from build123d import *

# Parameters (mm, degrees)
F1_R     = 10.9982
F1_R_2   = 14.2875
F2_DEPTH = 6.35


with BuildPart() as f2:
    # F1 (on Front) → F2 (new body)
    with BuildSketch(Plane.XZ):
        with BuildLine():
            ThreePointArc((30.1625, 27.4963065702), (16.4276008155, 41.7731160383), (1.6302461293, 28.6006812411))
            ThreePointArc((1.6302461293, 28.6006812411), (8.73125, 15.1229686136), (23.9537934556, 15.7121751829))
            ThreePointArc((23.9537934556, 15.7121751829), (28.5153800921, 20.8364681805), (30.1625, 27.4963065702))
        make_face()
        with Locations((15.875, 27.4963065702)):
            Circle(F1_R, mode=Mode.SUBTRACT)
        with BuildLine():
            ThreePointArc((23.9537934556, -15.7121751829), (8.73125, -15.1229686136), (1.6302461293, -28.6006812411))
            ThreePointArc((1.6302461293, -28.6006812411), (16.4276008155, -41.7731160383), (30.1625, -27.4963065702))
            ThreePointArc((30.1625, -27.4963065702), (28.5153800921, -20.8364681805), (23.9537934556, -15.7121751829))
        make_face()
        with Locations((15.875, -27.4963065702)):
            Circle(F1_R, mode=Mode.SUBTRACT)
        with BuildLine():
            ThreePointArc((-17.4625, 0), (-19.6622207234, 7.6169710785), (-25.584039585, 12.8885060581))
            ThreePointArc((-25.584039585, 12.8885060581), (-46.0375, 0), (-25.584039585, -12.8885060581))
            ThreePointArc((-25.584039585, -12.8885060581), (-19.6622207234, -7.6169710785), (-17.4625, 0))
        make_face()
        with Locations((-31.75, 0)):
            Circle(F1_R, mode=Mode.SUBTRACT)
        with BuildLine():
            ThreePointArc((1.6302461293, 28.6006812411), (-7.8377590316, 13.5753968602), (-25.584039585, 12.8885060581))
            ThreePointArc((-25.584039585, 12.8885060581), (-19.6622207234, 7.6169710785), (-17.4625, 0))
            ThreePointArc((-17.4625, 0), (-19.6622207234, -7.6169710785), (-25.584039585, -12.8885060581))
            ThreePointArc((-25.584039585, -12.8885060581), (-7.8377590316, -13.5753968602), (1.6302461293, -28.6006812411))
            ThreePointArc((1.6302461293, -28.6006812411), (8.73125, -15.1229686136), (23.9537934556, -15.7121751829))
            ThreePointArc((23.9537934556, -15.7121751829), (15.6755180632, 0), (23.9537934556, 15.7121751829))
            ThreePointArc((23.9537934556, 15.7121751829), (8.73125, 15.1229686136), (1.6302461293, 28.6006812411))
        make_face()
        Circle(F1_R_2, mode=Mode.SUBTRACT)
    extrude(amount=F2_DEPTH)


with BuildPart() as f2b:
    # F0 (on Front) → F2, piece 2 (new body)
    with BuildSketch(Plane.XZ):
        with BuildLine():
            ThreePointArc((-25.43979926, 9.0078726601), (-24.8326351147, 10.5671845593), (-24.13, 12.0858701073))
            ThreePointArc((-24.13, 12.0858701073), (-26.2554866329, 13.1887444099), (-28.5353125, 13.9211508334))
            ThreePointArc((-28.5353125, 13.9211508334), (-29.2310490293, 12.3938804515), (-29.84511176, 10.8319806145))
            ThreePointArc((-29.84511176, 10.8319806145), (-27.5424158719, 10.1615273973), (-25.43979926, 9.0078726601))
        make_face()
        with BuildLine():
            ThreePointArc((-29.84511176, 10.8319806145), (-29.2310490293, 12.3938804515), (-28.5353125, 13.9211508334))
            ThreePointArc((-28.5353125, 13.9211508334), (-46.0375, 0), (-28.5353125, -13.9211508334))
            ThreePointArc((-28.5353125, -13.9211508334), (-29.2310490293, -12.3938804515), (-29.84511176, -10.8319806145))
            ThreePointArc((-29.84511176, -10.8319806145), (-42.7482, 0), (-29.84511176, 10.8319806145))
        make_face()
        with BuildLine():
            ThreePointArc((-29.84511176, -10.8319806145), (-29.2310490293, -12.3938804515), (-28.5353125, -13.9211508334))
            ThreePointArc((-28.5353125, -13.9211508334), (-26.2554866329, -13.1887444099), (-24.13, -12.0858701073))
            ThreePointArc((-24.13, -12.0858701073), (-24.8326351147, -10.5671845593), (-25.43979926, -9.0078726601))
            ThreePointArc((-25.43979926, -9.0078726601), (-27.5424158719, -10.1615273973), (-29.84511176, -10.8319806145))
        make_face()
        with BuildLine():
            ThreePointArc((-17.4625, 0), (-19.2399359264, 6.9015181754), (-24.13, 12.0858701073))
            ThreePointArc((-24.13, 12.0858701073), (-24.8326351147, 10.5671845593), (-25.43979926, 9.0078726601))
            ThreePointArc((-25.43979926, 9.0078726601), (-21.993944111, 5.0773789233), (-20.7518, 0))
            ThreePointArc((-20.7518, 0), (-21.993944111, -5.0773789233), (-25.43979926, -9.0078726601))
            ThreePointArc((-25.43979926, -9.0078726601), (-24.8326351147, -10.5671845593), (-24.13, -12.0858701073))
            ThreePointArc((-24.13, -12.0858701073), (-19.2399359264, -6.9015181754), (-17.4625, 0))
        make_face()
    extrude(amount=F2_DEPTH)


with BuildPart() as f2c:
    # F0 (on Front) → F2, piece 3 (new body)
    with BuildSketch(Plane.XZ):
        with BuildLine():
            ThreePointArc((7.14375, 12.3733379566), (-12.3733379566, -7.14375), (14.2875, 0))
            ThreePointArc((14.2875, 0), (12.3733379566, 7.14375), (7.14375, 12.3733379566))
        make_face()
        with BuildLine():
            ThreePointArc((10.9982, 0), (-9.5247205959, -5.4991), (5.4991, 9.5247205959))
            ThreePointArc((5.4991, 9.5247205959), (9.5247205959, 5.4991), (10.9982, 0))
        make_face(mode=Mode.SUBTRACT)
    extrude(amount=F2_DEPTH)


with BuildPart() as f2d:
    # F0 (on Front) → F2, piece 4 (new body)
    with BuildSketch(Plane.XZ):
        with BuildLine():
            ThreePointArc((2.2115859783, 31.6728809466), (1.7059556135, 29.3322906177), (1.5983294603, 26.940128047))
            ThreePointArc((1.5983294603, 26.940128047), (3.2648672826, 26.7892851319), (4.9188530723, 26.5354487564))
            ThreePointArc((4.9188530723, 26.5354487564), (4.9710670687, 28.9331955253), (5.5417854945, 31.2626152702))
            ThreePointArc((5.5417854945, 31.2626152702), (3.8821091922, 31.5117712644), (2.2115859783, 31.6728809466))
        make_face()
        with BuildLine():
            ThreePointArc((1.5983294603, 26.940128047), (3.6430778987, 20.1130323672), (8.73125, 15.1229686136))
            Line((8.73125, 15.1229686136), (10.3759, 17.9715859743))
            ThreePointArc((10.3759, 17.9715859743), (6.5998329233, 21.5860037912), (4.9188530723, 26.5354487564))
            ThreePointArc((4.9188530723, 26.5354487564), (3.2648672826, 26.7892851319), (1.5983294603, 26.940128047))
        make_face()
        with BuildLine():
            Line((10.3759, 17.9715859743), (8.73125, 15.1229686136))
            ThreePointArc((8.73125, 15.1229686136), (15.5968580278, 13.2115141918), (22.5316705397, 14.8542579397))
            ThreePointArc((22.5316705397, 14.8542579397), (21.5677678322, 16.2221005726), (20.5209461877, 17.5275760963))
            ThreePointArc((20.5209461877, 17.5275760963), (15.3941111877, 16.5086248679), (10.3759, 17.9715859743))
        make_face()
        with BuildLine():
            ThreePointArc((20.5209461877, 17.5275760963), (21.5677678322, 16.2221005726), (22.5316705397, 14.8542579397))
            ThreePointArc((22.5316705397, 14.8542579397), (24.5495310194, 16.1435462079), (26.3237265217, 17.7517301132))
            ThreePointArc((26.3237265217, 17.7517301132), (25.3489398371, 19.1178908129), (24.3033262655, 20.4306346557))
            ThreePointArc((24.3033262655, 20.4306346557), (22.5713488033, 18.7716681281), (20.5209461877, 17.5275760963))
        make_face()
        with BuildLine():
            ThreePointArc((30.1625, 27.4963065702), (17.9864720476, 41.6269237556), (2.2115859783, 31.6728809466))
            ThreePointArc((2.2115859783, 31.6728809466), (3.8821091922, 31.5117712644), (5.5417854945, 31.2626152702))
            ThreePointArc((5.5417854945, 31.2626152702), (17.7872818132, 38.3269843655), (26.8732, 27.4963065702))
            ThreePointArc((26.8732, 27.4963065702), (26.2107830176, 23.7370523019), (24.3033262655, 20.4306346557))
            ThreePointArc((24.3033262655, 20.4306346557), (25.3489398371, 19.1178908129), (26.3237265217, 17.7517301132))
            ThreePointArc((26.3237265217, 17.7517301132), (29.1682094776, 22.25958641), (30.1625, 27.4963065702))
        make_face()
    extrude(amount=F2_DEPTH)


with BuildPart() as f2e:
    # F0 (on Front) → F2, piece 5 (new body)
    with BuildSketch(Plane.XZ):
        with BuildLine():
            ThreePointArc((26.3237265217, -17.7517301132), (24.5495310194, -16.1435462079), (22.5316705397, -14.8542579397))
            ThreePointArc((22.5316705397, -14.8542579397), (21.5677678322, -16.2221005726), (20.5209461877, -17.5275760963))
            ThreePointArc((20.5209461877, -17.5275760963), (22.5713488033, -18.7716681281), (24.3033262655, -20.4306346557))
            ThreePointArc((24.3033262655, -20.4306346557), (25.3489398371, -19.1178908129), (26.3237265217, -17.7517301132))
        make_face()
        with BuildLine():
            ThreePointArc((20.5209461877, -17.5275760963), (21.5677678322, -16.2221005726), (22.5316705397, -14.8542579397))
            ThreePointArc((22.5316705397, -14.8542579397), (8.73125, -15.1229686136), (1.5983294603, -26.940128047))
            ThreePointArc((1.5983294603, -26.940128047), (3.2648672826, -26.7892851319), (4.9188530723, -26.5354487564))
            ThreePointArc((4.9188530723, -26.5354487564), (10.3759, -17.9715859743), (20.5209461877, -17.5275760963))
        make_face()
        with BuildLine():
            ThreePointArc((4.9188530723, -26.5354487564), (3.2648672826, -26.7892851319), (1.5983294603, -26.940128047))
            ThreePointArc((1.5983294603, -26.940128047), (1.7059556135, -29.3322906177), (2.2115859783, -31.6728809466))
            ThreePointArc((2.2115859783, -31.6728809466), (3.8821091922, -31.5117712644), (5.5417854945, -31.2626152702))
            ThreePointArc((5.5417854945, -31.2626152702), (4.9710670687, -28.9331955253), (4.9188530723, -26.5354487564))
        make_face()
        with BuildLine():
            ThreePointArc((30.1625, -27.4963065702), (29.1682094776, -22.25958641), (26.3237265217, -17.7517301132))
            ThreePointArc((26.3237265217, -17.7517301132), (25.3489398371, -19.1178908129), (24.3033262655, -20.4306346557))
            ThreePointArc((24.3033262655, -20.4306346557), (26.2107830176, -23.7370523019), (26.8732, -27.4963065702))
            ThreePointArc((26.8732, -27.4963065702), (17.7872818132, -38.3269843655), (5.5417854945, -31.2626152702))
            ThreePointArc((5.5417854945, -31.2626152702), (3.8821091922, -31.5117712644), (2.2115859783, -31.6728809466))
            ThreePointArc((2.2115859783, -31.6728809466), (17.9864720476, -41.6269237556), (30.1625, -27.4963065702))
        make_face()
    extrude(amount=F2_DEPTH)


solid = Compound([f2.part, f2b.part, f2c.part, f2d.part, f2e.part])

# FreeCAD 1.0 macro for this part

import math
import FreeCAD as App
import Part
import Sketcher
Q = App.Units.Quantity

doc = App.newDocument("Part")
params = doc.addObject("Spreadsheet::Sheet", "Params")
for row, (alias, value) in enumerate([
    ("sketch1_radius", "0.75 in"),
    ("sketch1_diameter", "0.866 in"),
    ("sketch1_diameter2", "1.125 in"),
    ("pad1_length", "0.25 in"),
    ("sketch2_radius", "0.5625 in"),
    ("sketch2_radius2", "0.433 in"),
    ("sketch2_width", "0.3 in"),
    ("pad2_length", "0.25 in"),
    ("sketch3_diameter", "0.866 in"),
    ("sketch3_radius", "0.5625 in"),
    ("pad3_length", "0.25 in"),
    ("sketch4_radius", "0.5625 in"),
    ("sketch4_radius2", "0.433 in"),
    ("pad4_length", "0.25 in"),
    ("sketch5_radius", "0.5625 in"),
    ("sketch5_radius2", "0.433 in"),
    ("pad5_length", "0.25 in"),
], start=1):
    params.set(f"A{row}", alias)
    params.set(f"B{row}", "=" + value)
    params.setAlias(f"B{row}", alias)

body = doc.addObject("PartDesign::Body", "Body")

# Sketch on XZ plane
sketch1 = doc.addObject("Sketcher::SketchObject", "Sketch")
body.addObject(sketch1)
sketch1.AttachmentSupport = (doc.XZ_Plane, [""])
sketch1.MapMode = "FlatFace"
sketch1.addGeometry([
    Part.ArcOfCircle(Part.Circle(App.Vector(15.875, 27.496307, 0), App.Vector(0, 0, 1), 14.2875), math.radians(0), math.radians(175.566811)),  # 0
    Part.ArcOfCircle(Part.Circle(App.Vector(-17.362759, 30.073181, 0), App.Vector(0, 0, 1), 19.05), math.radians(-115.566811), math.radians(-4.433189)),  # 1
    Part.ArcOfCircle(Part.Circle(App.Vector(-31.75, 0, 0), App.Vector(0, 0, 1), 14.2875), math.radians(64.433189), math.radians(295.566811)),  # 2
    Part.ArcOfCircle(Part.Circle(App.Vector(-17.362759, -30.073181, 0), App.Vector(0, 0, 1), 19.05), math.radians(4.433189), math.radians(115.566811)),  # 3
    Part.ArcOfCircle(Part.Circle(App.Vector(15.875, -27.496307, 0), App.Vector(0, 0, 1), 14.2875), math.radians(-175.566811), math.radians(0)),  # 4
    Part.ArcOfCircle(Part.Circle(App.Vector(15.875, -27.496307, 0), App.Vector(0, 0, 1), 14.2875), math.radians(0), math.radians(55.566811)),  # 5
    Part.ArcOfCircle(Part.Circle(App.Vector(34.725518, 0, 0), App.Vector(0, 0, 1), 19.05), math.radians(124.433189), math.radians(235.566811)),  # 6
    Part.ArcOfCircle(Part.Circle(App.Vector(15.875, 27.496307, 0), App.Vector(0, 0, 1), 14.2875), math.radians(-55.566811), math.radians(0)),  # 7
    Part.Circle(App.Vector(15.875, -27.496307, 0), App.Vector(0, 0, 1), 10.9982),  # 8
    Part.Circle(App.Vector(-31.75, 0, 0), App.Vector(0, 0, 1), 10.9982),  # 9
    Part.Circle(App.Vector(0, 0, 0), App.Vector(0, 0, 1), 14.2875),  # 10
    Part.Circle(App.Vector(15.875, 27.496307, 0), App.Vector(0, 0, 1), 10.9982),  # 11
], False)
sketch1.addConstraint([
    Sketcher.Constraint("Tangent", 0, 2, 1, 2),
    Sketcher.Constraint("Tangent", 1, 1, 2, 1),
    Sketcher.Constraint("Tangent", 2, 2, 3, 2),
    Sketcher.Constraint("Tangent", 3, 1, 4, 1),
    Sketcher.Constraint("Tangent", 4, 2, 5, 1),
    Sketcher.Constraint("Tangent", 5, 2, 6, 2),
    Sketcher.Constraint("Tangent", 6, 1, 7, 1),
    Sketcher.Constraint("Tangent", 7, 2, 0, 1),
    Sketcher.Constraint("Coincident", 10, 3, -1, 1),
    Sketcher.Constraint("Coincident", 8, 3, 4, 3),
    Sketcher.Constraint("Coincident", 9, 3, 2, 3),
    Sketcher.Constraint("Coincident", 11, 3, 0, 3),
    Sketcher.Constraint("Equal", 0, 2),
    Sketcher.Constraint("Equal", 1, 3),
    Sketcher.Constraint("Equal", 2, 4),
    Sketcher.Constraint("Equal", 4, 5),
    Sketcher.Constraint("Equal", 3, 6),
    Sketcher.Constraint("Equal", 5, 7),
    Sketcher.Constraint("Equal", 8, 9),
    Sketcher.Constraint("Equal", 7, 10),
    Sketcher.Constraint("Equal", 9, 11),
    Sketcher.Constraint("Symmetric", 1, 3, 3, 3, -1),
    Sketcher.Constraint("Symmetric", 4, 2, 7, 2, -1),
    Sketcher.Constraint("Horizontal", 8, 3, 4, 2),
    Sketcher.Constraint("Radius", 1, Q("0.75 in")),
    Sketcher.Constraint("Diameter", 8, Q("0.866 in")),
    Sketcher.Constraint("Diameter", 10, Q("1.125 in")),
    Sketcher.Constraint("DistanceX", 2, 3, -1, 1, Q("1.25 in")),
    Sketcher.Constraint("DistanceX", -1, 1, 0, 3, Q("0.625 in")),
    Sketcher.Constraint("DistanceY", 0, 2, 1, 3, Q("1.4725 mm")),
])
sketch1.setExpression("Constraints[24]", "Params.sketch1_radius")
sketch1.setExpression("Constraints[25]", "Params.sketch1_diameter")
sketch1.setExpression("Constraints[26]", "Params.sketch1_diameter2")
pad1 = doc.addObject("PartDesign::Pad", "Pad")
body.addObject(pad1)
pad1.Profile = sketch1
pad1.setExpression("Length", "Params.pad1_length")
body2 = doc.addObject("PartDesign::Body", "Body001")

# Sketch on XZ plane
sketch2 = doc.addObject("Sketcher::SketchObject", "Sketch001")
body2.addObject(sketch2)
sketch2.AttachmentSupport = (doc.getObject("XZ_Plane001"), [""])
sketch2.MapMode = "FlatFace"
sketch2.addGeometry([
    Part.ArcOfCircle(Part.Circle(App.Vector(-31.75, 0, 0), App.Vector(0, 0, 1), 14.2875), math.radians(57.769047), math.radians(76.997122)),  # 0
    Part.ArcOfCircle(Part.Circle(App.Vector(-31.75, 0, 0), App.Vector(0, 0, 1), 14.2875), math.radians(76.997122), math.radians(283.002878)),  # 1
    Part.ArcOfCircle(Part.Circle(App.Vector(-31.75, 0, 0), App.Vector(0, 0, 1), 14.2875), math.radians(-76.997122), math.radians(-57.769047)),  # 2
    Part.ArcOfCircle(Part.Circle(App.Vector(-31.75, 0, 0), App.Vector(0, 0, 1), 14.2875), math.radians(-57.769047), math.radians(0)),  # 3
    Part.ArcOfCircle(Part.Circle(App.Vector(-31.75, 0, 0), App.Vector(0, 0, 1), 14.2875), math.radians(0), math.radians(57.769047)),  # 4
    Part.ArcOfCircle(Part.Circle(App.Vector(-31.75, 0, 0), App.Vector(0, 0, 1), 10.9982), math.radians(-80.026074), math.radians(-54.987964)),  # 5
    Part.ArcOfCircle(Part.Circle(App.Vector(-31.75, 0, 0), App.Vector(0, 0, 1), 10.9982), math.radians(80.026074), math.radians(279.973926)),  # 6
    Part.ArcOfCircle(Part.Circle(App.Vector(-31.75, 0, 0), App.Vector(0, 0, 1), 10.9982), math.radians(54.987964), math.radians(80.026074)),  # 7
    Part.ArcOfCircle(Part.Circle(App.Vector(-31.75, 0, 0), App.Vector(0, 0, 1), 10.9982), math.radians(0), math.radians(54.987964)),  # 8
    Part.ArcOfCircle(Part.Circle(App.Vector(-31.75, 0, 0), App.Vector(0, 0, 1), 10.9982), math.radians(-54.987964), math.radians(0)),  # 9
], False)
sketch2.addConstraint([
    Sketcher.Constraint("Tangent", 0, 2, 1, 1),
    Sketcher.Constraint("Tangent", 1, 2, 2, 1),
    Sketcher.Constraint("Tangent", 2, 2, 3, 1),
    Sketcher.Constraint("Tangent", 3, 2, 4, 1),
    Sketcher.Constraint("Tangent", 4, 2, 0, 1),
    Sketcher.Constraint("Tangent", 5, 1, 6, 2),
    Sketcher.Constraint("Tangent", 6, 1, 7, 2),
    Sketcher.Constraint("Tangent", 7, 1, 8, 2),
    Sketcher.Constraint("Tangent", 8, 1, 9, 2),
    Sketcher.Constraint("Tangent", 9, 1, 5, 2),
    Sketcher.Constraint("Coincident", 2, 3, 0, 3),
    Sketcher.Constraint("Coincident", 5, 3, 0, 3),
    Sketcher.Constraint("Coincident", 7, 3, 0, 3),
    Sketcher.Constraint("Symmetric", 0, 2, 1, 2, -1),
    Sketcher.Constraint("PointOnObject", 3, 2, -1),
    Sketcher.Constraint("PointOnObject", 8, 1, -1),
    Sketcher.Constraint("Vertical", 2, 2, 4, 2),
    Sketcher.Constraint("Vertical", 5, 1, 6, 1),
    Sketcher.Constraint("Vertical", 7, 1, 9, 1),
    Sketcher.Constraint("Radius", 0, Q("0.5625 in")),
    Sketcher.Constraint("Radius", 5, Q("0.433 in")),
    Sketcher.Constraint("DistanceX", 2, 3, 2, 2, Q("0.3 in")),
    Sketcher.Constraint("DistanceX", 0, 3, -1, 1, Q("1.25 in")),
    Sketcher.Constraint("DistanceX", 7, 1, -1, 1, Q("25.439799 mm")),
    Sketcher.Constraint("DistanceX", 5, 1, 1, 2, Q("1.309799 mm")),
    Sketcher.Constraint("DistanceY", -1, 1, 0, 2, Q("13.921151 mm")),
])
sketch2.setExpression("Constraints[19]", "Params.sketch2_radius")
sketch2.setExpression("Constraints[20]", "Params.sketch2_radius2")
sketch2.setExpression("Constraints[21]", "Params.sketch2_width")
pad2 = doc.addObject("PartDesign::Pad", "Pad001")
body2.addObject(pad2)
pad2.Profile = sketch2
pad2.setExpression("Length", "Params.pad2_length")
body3 = doc.addObject("PartDesign::Body", "Body002")

# Sketch on XZ plane
sketch3 = doc.addObject("Sketcher::SketchObject", "Sketch002")
body3.addObject(sketch3)
sketch3.AttachmentSupport = (doc.getObject("XZ_Plane002"), [""])
sketch3.MapMode = "FlatFace"
sketch3.addGeometry([
    Part.ArcOfCircle(Part.Circle(App.Vector(0, 0, 0), App.Vector(0, 0, 1), 14.2875), math.radians(60), math.radians(360)),
    Part.ArcOfCircle(Part.Circle(App.Vector(0, 0, 0), App.Vector(0, 0, 1), 14.2875), math.radians(0), math.radians(60)),
    Part.Circle(App.Vector(0, 0, 0), App.Vector(0, 0, 1), 10.9982),
], False)
sketch3.addConstraint([
    Sketcher.Constraint("Tangent", 0, 1, 1, 2),
    Sketcher.Constraint("Coincident", 1, 1, 0, 2),
    Sketcher.Constraint("Coincident", 0, 3, -1, 1),
    Sketcher.Constraint("Coincident", 2, 3, -1, 1),
    Sketcher.Constraint("PointOnObject", 1, 1, -1),
    Sketcher.Constraint("Diameter", 2, Q("0.866 in")),
    Sketcher.Constraint("Radius", 0, Q("0.5625 in")),
    Sketcher.Constraint("DistanceX", -1, 1, 0, 1, Q("0.28125 in")),
])
sketch3.setExpression("Constraints[5]", "Params.sketch3_diameter")
sketch3.setExpression("Constraints[6]", "Params.sketch3_radius")
pad3 = doc.addObject("PartDesign::Pad", "Pad002")
body3.addObject(pad3)
pad3.Profile = sketch3
pad3.setExpression("Length", "Params.pad3_length")
body4 = doc.addObject("PartDesign::Body", "Body003")

# Sketch on XZ plane
sketch4 = doc.addObject("Sketcher::SketchObject", "Sketch003")
body4.addObject(sketch4)
sketch4.AttachmentSupport = (doc.getObject("XZ_Plane003"), [""])
sketch4.MapMode = "FlatFace"
sketch4.addGeometry([
    Part.ArcOfCircle(Part.Circle(App.Vector(15.875, 27.496307, 0), App.Vector(0, 0, 1), 14.2875), math.radians(163.002878), math.radians(182.230953)),  # 0
    Part.ArcOfCircle(Part.Circle(App.Vector(15.875, 27.496307, 0), App.Vector(0, 0, 1), 14.2875), math.radians(-177.769047), math.radians(-120)),  # 1
    Part.ArcOfCircle(Part.Circle(App.Vector(15.875, 27.496307, 0), App.Vector(0, 0, 1), 14.2875), math.radians(-120), math.radians(-62.230953)),  # 2
    Part.ArcOfCircle(Part.Circle(App.Vector(15.875, 27.496307, 0), App.Vector(0, 0, 1), 14.2875), math.radians(-62.230953), math.radians(-43.002878)),  # 3
    Part.ArcOfCircle(Part.Circle(App.Vector(15.875, 27.496307, 0), App.Vector(0, 0, 1), 14.2875), math.radians(-43.002878), math.radians(0)),  # 4
    Part.ArcOfCircle(Part.Circle(App.Vector(15.875, 27.496307, 0), App.Vector(0, 0, 1), 14.2875), math.radians(0), math.radians(163.002878)),  # 5
    Part.ArcOfCircle(Part.Circle(App.Vector(15.875, 27.496307, 0), App.Vector(0, 0, 1), 10.9982), math.radians(-65.012036), math.radians(-39.973926)),  # 6
    Part.ArcOfCircle(Part.Circle(App.Vector(15.875, 27.496307, 0), App.Vector(0, 0, 1), 10.9982), math.radians(-120), math.radians(-65.012036)),  # 7
    Part.ArcOfCircle(Part.Circle(App.Vector(15.875, 27.496307, 0), App.Vector(0, 0, 1), 10.9982), math.radians(-174.987964), math.radians(-120)),  # 8
    Part.ArcOfCircle(Part.Circle(App.Vector(15.875, 27.496307, 0), App.Vector(0, 0, 1), 10.9982), math.radians(159.973926), math.radians(185.012036)),  # 9
    Part.ArcOfCircle(Part.Circle(App.Vector(15.875, 27.496307, 0), App.Vector(0, 0, 1), 10.9982), math.radians(0), math.radians(159.973926)),  # 10
    Part.ArcOfCircle(Part.Circle(App.Vector(15.875, 27.496307, 0), App.Vector(0, 0, 1), 10.9982), math.radians(-39.973926), math.radians(0)),  # 11
], False)
sketch4.addConstraint([
    Sketcher.Constraint("Tangent", 0, 2, 1, 1),
    Sketcher.Constraint("Tangent", 1, 2, 2, 1),
    Sketcher.Constraint("Tangent", 2, 2, 3, 1),
    Sketcher.Constraint("Tangent", 3, 2, 4, 1),
    Sketcher.Constraint("Tangent", 4, 2, 5, 1),
    Sketcher.Constraint("Tangent", 5, 2, 0, 1),
    Sketcher.Constraint("Tangent", 6, 1, 7, 2),
    Sketcher.Constraint("Tangent", 7, 1, 8, 2),
    Sketcher.Constraint("Tangent", 8, 1, 9, 2),
    Sketcher.Constraint("Tangent", 9, 1, 10, 2),
    Sketcher.Constraint("Tangent", 10, 1, 11, 2),
    Sketcher.Constraint("Tangent", 11, 1, 6, 2),
    Sketcher.Constraint("Coincident", 2, 3, 0, 3),
    Sketcher.Constraint("Coincident", 6, 3, 0, 3),
    Sketcher.Constraint("Coincident", 8, 3, 0, 3),
    Sketcher.Constraint("Equal", 2, 3),
    Sketcher.Constraint("Equal", 8, 9),
    Sketcher.Constraint("Horizontal", 11, 3, 4, 2),
    Sketcher.Constraint("Horizontal", 4, 2, 10, 1),
    Sketcher.Constraint("Radius", 0, Q("0.5625 in")),
    Sketcher.Constraint("Radius", 6, Q("0.433 in")),
    Sketcher.Constraint("DistanceX", -1, 1, 0, 3, Q("0.625 in")),
    Sketcher.Constraint("DistanceX", -1, 1, 1, 2, Q("0.34375 in")),
    Sketcher.Constraint("DistanceX", -1, 1, 7, 1, Q("0.4085 in")),
    Sketcher.Constraint("DistanceX", 5, 2, 9, 1, Q("3.3302 mm")),
    Sketcher.Constraint("DistanceX", 11, 1, 3, 2, Q("2.0204 mm")),
    Sketcher.Constraint("DistanceX", -1, 1, 0, 2, Q("1.598329 mm")),
    Sketcher.Constraint("DistanceY", -1, 1, 0, 2, Q("26.940128 mm")),
    Sketcher.Constraint("DistanceX", -1, 1, 2, 2, Q("22.531671 mm")),
    Sketcher.Constraint("DistanceY", -1, 1, 3, 2, Q("17.75173 mm")),
    Sketcher.Constraint("DistanceY", -1, 1, 5, 2, Q("31.672881 mm")),
    Sketcher.Constraint("DistanceY", -1, 1, 8, 1, Q("26.535449 mm")),
    Sketcher.Constraint("DistanceY", 2, 2, 6, 1, Q("2.673318 mm")),
])
sketch4.setExpression("Constraints[19]", "Params.sketch4_radius")
sketch4.setExpression("Constraints[20]", "Params.sketch4_radius2")
pad4 = doc.addObject("PartDesign::Pad", "Pad003")
body4.addObject(pad4)
pad4.Profile = sketch4
pad4.setExpression("Length", "Params.pad4_length")
body5 = doc.addObject("PartDesign::Body", "Body004")

# Sketch on XZ plane
sketch5 = doc.addObject("Sketcher::SketchObject", "Sketch004")
body5.addObject(sketch5)
sketch5.AttachmentSupport = (doc.getObject("XZ_Plane004"), [""])
sketch5.MapMode = "FlatFace"
sketch5.addGeometry([
    Part.ArcOfCircle(Part.Circle(App.Vector(15.875, -27.496307, 0), App.Vector(0, 0, 1), 14.2875), math.radians(43.002878), math.radians(62.230953)),  # 0
    Part.ArcOfCircle(Part.Circle(App.Vector(15.875, -27.496307, 0), App.Vector(0, 0, 1), 14.2875), math.radians(62.230953), math.radians(177.769047)),  # 1
    Part.ArcOfCircle(Part.Circle(App.Vector(15.875, -27.496307, 0), App.Vector(0, 0, 1), 14.2875), math.radians(177.769047), math.radians(196.997122)),  # 2
    Part.ArcOfCircle(Part.Circle(App.Vector(15.875, -27.496307, 0), App.Vector(0, 0, 1), 14.2875), math.radians(-163.002878), math.radians(0)),  # 3
    Part.ArcOfCircle(Part.Circle(App.Vector(15.875, -27.496307, 0), App.Vector(0, 0, 1), 14.2875), math.radians(0), math.radians(43.002878)),  # 4
    Part.ArcOfCircle(Part.Circle(App.Vector(15.875, -27.496307, 0), App.Vector(0, 0, 1), 10.9982), math.radians(174.987964), math.radians(200.026074)),  # 5
    Part.ArcOfCircle(Part.Circle(App.Vector(15.875, -27.496307, 0), App.Vector(0, 0, 1), 10.9982), math.radians(65.012036), math.radians(174.987964)),  # 6
    Part.ArcOfCircle(Part.Circle(App.Vector(15.875, -27.496307, 0), App.Vector(0, 0, 1), 10.9982), math.radians(39.973926), math.radians(65.012036)),  # 7
    Part.ArcOfCircle(Part.Circle(App.Vector(15.875, -27.496307, 0), App.Vector(0, 0, 1), 10.9982), math.radians(0), math.radians(39.973926)),  # 8
    Part.ArcOfCircle(Part.Circle(App.Vector(15.875, -27.496307, 0), App.Vector(0, 0, 1), 10.9982), math.radians(-159.973926), math.radians(0)),  # 9
], False)
sketch5.addConstraint([
    Sketcher.Constraint("Tangent", 0, 2, 1, 1),
    Sketcher.Constraint("Tangent", 1, 2, 2, 1),
    Sketcher.Constraint("Tangent", 2, 2, 3, 1),
    Sketcher.Constraint("Tangent", 3, 2, 4, 1),
    Sketcher.Constraint("Tangent", 4, 2, 0, 1),
    Sketcher.Constraint("Tangent", 5, 1, 6, 2),
    Sketcher.Constraint("Tangent", 6, 1, 7, 2),
    Sketcher.Constraint("Tangent", 7, 1, 8, 2),
    Sketcher.Constraint("Tangent", 8, 1, 9, 2),
    Sketcher.Constraint("Tangent", 9, 1, 5, 2),
    Sketcher.Constraint("Coincident", 2, 3, 0, 3),
    Sketcher.Constraint("Coincident", 5, 3, 0, 3),
    Sketcher.Constraint("Coincident", 7, 3, 0, 3),
    Sketcher.Constraint("Horizontal", 9, 3, 3, 2),
    Sketcher.Constraint("Horizontal", 3, 2, 8, 1),
    Sketcher.Constraint("Radius", 0, Q("0.5625 in")),
    Sketcher.Constraint("Radius", 5, Q("0.433 in")),
    Sketcher.Constraint("DistanceX", -1, 1, 0, 3, Q("0.625 in")),
    Sketcher.Constraint("DistanceX", 7, 1, 4, 2, Q("2.0204 mm")),
    Sketcher.Constraint("DistanceX", 2, 2, 9, 1, Q("3.3302 mm")),
    Sketcher.Constraint("DistanceX", -1, 1, 0, 2, Q("22.531671 mm")),
    Sketcher.Constraint("DistanceX", -1, 1, 1, 2, Q("1.598329 mm")),
    Sketcher.Constraint("DistanceY", 1, 2, -1, 1, Q("26.940128 mm")),
    Sketcher.Constraint("DistanceY", 2, 2, -1, 1, Q("31.672881 mm")),
    Sketcher.Constraint("DistanceY", 4, 2, -1, 1, Q("17.75173 mm")),
    Sketcher.Constraint("DistanceY", 5, 1, -1, 1, Q("26.535449 mm")),
    Sketcher.Constraint("DistanceY", 6, 1, 0, 2, Q("2.673318 mm")),
])
sketch5.setExpression("Constraints[15]", "Params.sketch5_radius")
sketch5.setExpression("Constraints[16]", "Params.sketch5_radius2")
pad5 = doc.addObject("PartDesign::Pad", "Pad004")
body5.addObject(pad5)
pad5.Profile = sketch5
pad5.setExpression("Length", "Params.pad5_length")

doc.recompute()
